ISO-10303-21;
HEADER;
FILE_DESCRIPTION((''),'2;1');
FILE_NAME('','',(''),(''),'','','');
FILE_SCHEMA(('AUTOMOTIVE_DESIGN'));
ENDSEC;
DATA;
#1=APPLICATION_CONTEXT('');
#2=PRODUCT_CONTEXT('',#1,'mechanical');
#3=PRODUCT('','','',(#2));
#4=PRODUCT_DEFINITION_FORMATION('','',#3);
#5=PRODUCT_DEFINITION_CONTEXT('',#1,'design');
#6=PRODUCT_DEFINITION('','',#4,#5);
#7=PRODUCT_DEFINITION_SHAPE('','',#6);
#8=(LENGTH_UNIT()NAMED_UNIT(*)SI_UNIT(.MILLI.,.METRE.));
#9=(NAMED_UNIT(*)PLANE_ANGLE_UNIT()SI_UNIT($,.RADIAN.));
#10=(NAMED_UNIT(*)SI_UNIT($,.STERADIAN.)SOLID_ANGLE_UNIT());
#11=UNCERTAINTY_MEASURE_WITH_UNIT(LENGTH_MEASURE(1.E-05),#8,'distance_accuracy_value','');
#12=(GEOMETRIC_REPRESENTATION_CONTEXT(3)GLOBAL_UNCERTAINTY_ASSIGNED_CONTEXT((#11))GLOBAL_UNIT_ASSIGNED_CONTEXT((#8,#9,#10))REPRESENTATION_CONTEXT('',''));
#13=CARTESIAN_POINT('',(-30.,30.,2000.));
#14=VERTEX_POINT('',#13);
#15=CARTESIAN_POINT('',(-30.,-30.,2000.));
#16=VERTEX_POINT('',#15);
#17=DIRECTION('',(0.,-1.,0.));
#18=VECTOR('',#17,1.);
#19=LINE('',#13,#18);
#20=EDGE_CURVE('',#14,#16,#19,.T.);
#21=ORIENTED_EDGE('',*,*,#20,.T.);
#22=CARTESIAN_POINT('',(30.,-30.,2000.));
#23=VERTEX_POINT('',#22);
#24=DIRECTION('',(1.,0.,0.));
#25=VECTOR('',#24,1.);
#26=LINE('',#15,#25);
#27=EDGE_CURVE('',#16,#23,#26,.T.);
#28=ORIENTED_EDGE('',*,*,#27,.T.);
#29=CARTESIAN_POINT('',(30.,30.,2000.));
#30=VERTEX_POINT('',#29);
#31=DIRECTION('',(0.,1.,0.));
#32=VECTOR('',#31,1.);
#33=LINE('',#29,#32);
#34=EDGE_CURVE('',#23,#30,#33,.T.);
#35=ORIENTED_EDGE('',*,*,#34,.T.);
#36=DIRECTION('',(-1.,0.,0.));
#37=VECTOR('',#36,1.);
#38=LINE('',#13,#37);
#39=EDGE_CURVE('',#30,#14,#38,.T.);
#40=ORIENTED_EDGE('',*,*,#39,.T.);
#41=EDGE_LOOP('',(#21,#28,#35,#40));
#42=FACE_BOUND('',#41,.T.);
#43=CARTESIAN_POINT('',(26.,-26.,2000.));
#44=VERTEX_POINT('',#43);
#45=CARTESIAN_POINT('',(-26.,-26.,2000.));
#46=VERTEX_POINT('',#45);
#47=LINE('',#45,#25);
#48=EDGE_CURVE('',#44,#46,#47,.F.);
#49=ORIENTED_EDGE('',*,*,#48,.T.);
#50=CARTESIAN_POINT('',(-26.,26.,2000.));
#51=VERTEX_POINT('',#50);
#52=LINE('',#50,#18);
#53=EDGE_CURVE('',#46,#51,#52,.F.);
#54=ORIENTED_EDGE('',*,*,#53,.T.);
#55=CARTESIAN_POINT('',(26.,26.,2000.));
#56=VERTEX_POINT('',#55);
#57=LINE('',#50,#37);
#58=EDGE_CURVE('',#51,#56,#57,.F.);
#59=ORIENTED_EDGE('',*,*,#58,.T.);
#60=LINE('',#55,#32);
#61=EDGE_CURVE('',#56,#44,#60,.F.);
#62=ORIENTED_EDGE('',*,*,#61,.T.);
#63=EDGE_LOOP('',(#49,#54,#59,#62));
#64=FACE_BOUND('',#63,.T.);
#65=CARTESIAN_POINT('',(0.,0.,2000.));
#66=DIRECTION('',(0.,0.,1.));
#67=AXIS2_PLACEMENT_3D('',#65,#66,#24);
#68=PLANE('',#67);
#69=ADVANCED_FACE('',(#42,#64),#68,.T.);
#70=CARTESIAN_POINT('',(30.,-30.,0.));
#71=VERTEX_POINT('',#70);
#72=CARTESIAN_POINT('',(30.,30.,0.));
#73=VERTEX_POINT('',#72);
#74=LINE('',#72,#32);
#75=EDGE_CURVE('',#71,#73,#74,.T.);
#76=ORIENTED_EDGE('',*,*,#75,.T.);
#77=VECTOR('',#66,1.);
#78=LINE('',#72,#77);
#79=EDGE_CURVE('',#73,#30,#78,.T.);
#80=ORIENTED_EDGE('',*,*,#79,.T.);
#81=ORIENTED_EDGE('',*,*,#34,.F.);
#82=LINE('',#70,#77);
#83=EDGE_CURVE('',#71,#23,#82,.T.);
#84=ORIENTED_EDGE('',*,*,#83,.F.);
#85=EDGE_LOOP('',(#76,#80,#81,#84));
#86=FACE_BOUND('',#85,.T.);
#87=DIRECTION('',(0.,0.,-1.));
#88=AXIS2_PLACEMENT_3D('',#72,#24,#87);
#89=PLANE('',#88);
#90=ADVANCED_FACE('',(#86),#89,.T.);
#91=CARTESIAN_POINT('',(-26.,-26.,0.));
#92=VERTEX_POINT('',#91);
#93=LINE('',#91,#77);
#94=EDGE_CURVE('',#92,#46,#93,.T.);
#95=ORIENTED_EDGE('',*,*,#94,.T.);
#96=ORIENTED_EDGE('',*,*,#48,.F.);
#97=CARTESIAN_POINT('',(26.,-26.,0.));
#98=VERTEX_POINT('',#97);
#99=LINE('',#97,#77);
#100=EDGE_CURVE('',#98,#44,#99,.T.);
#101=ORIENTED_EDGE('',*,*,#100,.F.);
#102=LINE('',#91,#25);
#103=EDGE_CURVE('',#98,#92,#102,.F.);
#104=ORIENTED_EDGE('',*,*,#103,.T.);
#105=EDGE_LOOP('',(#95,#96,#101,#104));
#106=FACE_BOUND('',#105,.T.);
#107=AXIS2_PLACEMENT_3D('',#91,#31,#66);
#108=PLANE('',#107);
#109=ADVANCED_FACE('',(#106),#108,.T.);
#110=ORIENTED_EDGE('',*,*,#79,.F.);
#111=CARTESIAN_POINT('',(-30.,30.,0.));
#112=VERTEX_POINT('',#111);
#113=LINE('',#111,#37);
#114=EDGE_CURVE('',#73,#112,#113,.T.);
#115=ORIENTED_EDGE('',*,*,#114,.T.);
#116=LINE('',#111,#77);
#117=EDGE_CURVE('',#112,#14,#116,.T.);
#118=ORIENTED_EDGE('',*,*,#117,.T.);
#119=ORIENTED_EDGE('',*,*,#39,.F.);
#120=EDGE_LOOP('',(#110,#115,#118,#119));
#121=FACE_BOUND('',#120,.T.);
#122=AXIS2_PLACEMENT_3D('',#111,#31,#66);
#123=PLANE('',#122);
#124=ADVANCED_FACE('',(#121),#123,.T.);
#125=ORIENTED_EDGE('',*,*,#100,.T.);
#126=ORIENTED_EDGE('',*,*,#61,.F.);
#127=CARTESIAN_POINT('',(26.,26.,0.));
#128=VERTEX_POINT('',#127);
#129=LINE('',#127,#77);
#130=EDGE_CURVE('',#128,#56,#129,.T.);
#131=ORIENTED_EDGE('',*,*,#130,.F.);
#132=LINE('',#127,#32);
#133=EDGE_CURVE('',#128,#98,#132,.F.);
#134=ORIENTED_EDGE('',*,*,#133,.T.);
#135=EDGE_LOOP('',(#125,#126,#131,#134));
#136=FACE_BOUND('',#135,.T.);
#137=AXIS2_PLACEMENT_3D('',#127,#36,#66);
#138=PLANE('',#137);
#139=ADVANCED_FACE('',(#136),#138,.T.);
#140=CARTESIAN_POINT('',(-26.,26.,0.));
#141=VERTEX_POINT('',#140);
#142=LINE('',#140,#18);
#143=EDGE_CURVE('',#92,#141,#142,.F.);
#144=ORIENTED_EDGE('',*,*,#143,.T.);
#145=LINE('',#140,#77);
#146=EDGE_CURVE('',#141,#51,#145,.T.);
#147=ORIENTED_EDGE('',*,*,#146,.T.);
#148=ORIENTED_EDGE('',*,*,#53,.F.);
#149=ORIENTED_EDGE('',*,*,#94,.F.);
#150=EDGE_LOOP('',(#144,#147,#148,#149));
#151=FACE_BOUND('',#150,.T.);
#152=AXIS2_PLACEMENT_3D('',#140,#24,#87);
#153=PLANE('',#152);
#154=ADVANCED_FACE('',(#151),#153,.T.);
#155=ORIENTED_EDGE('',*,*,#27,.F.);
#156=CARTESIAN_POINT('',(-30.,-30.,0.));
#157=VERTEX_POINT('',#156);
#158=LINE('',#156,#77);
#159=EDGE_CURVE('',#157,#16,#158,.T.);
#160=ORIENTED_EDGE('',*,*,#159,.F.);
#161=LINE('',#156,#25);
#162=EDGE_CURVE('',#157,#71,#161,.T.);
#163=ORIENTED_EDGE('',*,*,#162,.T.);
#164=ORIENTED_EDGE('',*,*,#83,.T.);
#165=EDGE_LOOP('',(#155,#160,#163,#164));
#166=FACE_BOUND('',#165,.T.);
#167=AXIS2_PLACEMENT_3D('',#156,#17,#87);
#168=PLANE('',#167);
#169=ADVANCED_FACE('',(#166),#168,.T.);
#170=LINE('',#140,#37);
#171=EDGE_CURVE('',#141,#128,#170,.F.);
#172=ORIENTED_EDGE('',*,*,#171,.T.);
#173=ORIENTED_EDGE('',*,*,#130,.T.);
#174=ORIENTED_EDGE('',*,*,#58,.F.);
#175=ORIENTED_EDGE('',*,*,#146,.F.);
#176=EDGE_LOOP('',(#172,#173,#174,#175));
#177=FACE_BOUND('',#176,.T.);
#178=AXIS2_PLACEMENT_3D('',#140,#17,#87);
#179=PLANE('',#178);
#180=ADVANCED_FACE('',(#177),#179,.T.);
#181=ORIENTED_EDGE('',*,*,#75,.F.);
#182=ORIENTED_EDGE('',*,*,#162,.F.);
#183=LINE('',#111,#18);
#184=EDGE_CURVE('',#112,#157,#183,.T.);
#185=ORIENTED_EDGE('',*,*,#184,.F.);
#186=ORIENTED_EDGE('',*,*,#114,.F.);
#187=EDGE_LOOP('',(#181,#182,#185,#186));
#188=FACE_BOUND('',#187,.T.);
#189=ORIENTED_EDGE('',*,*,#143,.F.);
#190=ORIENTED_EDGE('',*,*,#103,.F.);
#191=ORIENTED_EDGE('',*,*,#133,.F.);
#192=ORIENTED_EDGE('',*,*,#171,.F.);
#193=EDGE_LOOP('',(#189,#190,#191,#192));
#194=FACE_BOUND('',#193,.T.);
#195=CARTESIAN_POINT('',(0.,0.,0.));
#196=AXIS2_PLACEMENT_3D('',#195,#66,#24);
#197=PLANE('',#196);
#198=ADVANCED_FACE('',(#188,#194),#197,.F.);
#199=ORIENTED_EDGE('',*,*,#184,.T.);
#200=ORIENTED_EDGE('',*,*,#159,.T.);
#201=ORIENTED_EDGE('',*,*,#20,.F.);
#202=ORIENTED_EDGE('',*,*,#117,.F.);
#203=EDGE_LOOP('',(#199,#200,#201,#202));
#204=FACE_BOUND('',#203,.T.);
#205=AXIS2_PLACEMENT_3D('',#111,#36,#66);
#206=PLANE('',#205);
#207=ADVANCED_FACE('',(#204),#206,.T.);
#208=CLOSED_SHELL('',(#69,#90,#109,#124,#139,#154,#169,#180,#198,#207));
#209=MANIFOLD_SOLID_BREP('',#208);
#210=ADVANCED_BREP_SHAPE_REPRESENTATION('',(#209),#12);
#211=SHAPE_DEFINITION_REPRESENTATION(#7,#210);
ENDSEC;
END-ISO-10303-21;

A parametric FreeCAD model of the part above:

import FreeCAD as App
import Part
import Sketcher

V = App.Vector


def add_polygon(sketch, points):
    """Adds a closed chain of lines whose ends are joined by coincident constraints."""
    first, n = sketch.GeometryCount, len(points)
    for a, b in zip(points, points[1:] + points[:1]):
        sketch.addGeometry(Part.LineSegment(App.Vector(*a, 0), App.Vector(*b, 0)), False)
    for i in range(n):
        sketch.addConstraint(Sketcher.Constraint("Coincident", first + i, 2, first + (i + 1) % n, 1))

doc = App.newDocument("Part")
params = doc.addObject("Spreadsheet::Sheet", "Params")
for row, (alias, value) in enumerate([
    ("sketch1_width", "60 mm"),
    ("sketch1_width2", "52 mm"),
], start=1):
    params.set(f"A{row}", alias)
    params.set(f"B{row}", "=" + value)
    params.setAlias(f"B{row}", alias)

body = doc.addObject("PartDesign::Body", "Body")

# Sketch on XY plane
sketch1 = body.newObject("Sketcher::SketchObject", "Sketch")
sketch1.AttachmentSupport = (doc.getObject("XY_Plane"), [""])
sketch1.MapMode = "FlatFace"
add_polygon(sketch1, [(-30, 30), (-30, -30), (30, -30), (30, 30)])  # lines 0-3
add_polygon(sketch1, [(26, -26), (-26, -26), (-26, 26), (26, 26)])  # lines 4-7
sketch1.addConstraint([
    Sketcher.Constraint("Vertical", 0),
    Sketcher.Constraint("Horizontal", 1),
    Sketcher.Constraint("Vertical", 2),
    Sketcher.Constraint("Horizontal", 3),
    Sketcher.Constraint("Horizontal", 4),
    Sketcher.Constraint("Vertical", 5),
    Sketcher.Constraint("Horizontal", 6),
    Sketcher.Constraint("Vertical", 7),
    Sketcher.Constraint("Symmetric", 0, 2, 2, 2, -1, 1),
    Sketcher.Constraint("Symmetric", 4, 2, 6, 2, -1, 1),
    Sketcher.Constraint("Equal", 3, 0),
    Sketcher.Constraint("Equal", 6, 5),
    Sketcher.Constraint("DistanceX", 1, 1, 1, 2, 60.0),
    Sketcher.Constraint("DistanceX", 4, 2, 4, 1, 52.0),
])
sketch1.setExpression("Constraints[20]", "Params.sketch1_width")
sketch1.setExpression("Constraints[21]", "Params.sketch1_width2")

# Sketch on XZ plane
sketch2 = body.newObject("Sketcher::SketchObject", "Sketch001")
sketch2.AttachmentSupport = (doc.getObject("XZ_Plane"), [""])
sketch2.MapMode = "FlatFace"
sketch2.addGeometry(Part.BSplineCurve([V(0, 0, 0), V(0, 2000, 0)], [2, 2], [0, 1], False, 1, [1, 1], False), False)
sketch2.addConstraint(Sketcher.Constraint("Block", 0))
doc.recompute()

additivepipe = body.newObject("PartDesign::AdditivePipe", "AdditivePipe")
additivepipe.Profile = sketch1
additivepipe.Spine = (sketch2, ["Edge1"])

doc.recompute()
